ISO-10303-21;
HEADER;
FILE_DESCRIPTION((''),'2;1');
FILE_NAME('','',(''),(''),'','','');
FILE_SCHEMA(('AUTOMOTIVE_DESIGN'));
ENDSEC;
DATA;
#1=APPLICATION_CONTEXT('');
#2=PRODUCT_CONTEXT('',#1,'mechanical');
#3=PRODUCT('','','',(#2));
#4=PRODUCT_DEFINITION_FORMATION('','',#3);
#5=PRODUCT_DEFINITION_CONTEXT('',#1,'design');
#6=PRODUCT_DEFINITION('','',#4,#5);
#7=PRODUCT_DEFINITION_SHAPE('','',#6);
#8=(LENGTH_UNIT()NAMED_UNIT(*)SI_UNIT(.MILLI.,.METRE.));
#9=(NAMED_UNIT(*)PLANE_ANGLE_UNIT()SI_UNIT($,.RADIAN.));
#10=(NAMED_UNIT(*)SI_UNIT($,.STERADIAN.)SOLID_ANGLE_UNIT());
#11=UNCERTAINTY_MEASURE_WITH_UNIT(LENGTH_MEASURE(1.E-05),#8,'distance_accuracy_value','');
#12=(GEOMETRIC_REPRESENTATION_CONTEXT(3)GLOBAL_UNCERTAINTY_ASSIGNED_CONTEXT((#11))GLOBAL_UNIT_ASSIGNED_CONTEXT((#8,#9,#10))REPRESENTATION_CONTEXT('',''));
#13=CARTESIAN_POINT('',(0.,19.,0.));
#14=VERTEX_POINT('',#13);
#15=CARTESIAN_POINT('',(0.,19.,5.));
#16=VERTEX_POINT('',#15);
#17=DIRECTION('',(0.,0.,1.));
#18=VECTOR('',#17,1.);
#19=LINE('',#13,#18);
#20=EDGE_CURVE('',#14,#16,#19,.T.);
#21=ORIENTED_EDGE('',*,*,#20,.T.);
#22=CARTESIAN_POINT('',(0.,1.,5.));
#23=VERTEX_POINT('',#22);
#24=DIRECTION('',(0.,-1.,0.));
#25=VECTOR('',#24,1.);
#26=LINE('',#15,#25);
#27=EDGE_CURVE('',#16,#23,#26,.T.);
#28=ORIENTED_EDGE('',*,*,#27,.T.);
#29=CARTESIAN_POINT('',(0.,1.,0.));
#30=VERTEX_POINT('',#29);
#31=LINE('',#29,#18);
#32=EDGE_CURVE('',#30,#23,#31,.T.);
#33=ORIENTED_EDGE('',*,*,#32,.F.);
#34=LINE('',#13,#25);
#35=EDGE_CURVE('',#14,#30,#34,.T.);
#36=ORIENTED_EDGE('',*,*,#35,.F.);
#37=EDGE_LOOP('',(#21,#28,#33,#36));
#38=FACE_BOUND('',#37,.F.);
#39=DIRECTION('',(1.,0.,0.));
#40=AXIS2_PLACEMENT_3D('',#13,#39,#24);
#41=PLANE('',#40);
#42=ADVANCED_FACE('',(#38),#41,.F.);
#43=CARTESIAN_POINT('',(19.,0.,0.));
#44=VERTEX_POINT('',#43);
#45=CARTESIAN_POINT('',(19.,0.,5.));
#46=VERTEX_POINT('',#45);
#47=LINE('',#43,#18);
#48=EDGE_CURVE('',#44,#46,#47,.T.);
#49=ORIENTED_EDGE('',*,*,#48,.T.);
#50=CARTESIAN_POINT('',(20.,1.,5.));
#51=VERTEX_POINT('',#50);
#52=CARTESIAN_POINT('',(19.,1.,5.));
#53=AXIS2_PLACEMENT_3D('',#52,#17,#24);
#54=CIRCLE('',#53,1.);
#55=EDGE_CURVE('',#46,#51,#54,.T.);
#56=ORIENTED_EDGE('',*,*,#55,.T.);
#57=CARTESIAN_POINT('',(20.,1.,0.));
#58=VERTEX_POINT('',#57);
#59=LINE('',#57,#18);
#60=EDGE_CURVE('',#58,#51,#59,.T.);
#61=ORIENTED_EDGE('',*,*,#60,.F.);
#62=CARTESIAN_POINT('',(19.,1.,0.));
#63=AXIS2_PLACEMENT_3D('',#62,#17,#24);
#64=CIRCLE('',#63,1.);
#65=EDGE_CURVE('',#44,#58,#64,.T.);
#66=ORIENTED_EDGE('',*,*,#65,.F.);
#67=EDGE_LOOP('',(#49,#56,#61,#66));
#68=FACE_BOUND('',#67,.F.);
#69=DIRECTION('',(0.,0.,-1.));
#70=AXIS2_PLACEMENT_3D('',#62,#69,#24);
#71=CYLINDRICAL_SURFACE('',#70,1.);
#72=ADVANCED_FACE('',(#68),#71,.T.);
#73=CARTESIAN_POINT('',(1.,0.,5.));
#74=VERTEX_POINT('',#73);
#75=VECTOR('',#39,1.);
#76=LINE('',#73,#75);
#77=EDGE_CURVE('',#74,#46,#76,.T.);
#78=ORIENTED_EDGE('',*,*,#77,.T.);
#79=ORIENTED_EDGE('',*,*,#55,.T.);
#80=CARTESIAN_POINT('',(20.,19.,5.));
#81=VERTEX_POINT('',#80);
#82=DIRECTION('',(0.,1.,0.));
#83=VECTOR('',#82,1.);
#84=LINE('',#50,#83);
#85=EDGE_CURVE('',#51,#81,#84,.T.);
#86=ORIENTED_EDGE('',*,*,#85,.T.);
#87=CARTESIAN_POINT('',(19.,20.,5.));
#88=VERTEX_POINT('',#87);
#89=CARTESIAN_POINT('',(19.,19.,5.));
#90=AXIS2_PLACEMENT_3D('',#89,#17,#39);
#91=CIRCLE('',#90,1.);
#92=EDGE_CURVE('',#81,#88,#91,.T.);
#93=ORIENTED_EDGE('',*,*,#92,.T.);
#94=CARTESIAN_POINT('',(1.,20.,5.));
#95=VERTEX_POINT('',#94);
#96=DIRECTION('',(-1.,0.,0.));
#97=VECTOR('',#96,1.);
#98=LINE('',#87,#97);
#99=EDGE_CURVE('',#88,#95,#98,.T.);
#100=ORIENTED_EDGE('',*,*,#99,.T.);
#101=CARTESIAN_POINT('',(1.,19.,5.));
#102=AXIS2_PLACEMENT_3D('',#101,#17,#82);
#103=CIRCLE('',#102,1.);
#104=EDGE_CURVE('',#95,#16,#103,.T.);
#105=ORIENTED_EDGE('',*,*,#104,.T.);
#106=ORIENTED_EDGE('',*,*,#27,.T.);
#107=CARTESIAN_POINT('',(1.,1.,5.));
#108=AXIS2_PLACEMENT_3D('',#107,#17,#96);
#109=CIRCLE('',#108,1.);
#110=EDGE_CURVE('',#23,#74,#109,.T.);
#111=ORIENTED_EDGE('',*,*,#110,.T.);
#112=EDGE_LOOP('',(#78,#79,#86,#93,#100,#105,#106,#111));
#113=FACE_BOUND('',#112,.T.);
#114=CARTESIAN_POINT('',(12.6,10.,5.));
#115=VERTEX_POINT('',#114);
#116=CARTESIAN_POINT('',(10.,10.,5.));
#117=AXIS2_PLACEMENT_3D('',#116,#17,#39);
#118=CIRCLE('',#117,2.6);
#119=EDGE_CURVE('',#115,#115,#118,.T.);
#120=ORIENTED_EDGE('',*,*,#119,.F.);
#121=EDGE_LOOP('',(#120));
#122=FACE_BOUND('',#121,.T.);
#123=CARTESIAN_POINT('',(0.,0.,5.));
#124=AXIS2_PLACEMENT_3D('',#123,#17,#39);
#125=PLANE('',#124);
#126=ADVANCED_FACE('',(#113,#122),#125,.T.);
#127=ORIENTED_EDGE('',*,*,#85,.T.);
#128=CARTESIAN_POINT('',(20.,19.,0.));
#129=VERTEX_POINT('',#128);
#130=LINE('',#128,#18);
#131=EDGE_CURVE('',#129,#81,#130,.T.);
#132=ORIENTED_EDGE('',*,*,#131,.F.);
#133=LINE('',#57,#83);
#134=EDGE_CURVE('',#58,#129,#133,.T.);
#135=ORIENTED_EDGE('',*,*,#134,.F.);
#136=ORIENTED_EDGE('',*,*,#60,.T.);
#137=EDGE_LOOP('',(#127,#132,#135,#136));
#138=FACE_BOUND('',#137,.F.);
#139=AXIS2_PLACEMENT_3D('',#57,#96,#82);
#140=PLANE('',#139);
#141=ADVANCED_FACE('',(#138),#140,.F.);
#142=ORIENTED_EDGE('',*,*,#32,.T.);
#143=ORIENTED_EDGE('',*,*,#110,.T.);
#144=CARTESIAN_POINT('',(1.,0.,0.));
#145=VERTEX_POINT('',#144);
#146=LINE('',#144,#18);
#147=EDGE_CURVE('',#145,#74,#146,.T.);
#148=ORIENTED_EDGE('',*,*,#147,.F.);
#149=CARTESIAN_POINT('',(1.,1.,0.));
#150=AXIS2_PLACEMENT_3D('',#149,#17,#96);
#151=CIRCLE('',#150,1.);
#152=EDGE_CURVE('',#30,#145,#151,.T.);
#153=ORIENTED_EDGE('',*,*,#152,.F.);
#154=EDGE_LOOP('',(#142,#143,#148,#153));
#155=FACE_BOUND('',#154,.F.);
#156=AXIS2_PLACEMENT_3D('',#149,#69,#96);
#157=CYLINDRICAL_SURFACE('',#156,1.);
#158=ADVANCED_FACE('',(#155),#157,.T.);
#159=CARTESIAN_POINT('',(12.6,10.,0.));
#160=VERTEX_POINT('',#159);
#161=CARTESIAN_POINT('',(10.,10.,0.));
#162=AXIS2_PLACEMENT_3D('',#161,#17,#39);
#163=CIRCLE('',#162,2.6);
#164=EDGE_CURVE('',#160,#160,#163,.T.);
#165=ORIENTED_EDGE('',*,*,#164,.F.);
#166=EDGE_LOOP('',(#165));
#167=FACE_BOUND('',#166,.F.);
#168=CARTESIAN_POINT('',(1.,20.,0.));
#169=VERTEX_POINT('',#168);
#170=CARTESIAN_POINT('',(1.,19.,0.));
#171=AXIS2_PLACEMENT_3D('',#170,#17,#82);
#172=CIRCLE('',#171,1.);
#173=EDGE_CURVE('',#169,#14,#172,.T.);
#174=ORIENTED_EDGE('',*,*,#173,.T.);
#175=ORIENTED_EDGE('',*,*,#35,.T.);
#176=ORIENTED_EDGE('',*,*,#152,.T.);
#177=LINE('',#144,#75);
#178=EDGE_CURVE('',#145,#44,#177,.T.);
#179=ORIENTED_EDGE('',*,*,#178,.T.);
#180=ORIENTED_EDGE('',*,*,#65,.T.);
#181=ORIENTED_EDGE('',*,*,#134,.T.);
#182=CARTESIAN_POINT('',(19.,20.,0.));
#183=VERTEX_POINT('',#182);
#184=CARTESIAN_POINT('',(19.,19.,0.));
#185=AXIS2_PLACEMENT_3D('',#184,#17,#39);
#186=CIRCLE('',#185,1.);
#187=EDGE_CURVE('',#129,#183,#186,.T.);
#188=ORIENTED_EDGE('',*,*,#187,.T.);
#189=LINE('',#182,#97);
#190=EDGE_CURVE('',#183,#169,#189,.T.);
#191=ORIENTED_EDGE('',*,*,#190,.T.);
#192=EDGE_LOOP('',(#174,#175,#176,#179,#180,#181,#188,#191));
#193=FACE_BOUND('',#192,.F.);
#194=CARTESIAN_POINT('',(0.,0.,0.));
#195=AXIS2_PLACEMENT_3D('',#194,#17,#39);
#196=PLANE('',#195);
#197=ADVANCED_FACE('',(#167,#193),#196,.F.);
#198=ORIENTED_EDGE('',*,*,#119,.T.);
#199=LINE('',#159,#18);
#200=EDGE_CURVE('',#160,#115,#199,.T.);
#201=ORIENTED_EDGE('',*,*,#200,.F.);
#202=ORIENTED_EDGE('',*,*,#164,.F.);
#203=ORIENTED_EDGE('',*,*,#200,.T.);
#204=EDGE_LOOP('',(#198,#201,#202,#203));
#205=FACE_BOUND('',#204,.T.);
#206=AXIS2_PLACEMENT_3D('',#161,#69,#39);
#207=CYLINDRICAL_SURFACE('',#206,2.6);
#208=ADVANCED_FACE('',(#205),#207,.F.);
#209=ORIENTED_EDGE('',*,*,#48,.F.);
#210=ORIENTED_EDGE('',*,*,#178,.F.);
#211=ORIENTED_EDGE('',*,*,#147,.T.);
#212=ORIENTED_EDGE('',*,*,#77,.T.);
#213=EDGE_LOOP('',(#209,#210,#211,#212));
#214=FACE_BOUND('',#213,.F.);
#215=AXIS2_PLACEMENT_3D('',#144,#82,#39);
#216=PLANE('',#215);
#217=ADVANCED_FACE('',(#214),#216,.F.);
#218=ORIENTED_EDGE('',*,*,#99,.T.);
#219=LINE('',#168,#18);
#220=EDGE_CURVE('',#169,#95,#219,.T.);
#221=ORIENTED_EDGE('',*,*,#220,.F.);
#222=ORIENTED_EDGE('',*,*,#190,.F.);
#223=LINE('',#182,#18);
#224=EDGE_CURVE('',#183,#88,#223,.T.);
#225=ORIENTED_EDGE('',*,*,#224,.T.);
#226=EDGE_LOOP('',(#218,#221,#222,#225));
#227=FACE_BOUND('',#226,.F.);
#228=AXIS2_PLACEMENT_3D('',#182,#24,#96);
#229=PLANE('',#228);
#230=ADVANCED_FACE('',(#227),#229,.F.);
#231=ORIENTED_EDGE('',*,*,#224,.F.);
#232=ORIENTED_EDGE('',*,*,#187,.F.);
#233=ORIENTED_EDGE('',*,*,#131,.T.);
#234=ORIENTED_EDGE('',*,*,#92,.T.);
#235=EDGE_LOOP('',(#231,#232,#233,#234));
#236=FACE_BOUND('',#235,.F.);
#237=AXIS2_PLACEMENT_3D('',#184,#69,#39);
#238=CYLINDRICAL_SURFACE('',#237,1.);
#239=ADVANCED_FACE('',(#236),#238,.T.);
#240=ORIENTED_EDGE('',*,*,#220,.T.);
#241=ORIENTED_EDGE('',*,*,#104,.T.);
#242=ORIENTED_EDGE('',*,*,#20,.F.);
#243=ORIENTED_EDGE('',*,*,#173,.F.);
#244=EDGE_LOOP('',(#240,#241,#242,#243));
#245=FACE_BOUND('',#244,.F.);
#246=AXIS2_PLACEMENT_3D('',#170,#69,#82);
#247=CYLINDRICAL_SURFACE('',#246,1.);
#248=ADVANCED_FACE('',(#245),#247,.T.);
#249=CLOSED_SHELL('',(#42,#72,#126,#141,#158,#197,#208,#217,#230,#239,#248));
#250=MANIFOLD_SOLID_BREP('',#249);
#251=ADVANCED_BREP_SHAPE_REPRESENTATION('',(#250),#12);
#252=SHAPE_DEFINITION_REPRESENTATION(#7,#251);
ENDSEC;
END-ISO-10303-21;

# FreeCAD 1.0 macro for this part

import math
import FreeCAD as App
import Part
import Sketcher

doc = App.newDocument("Part")
params = doc.addObject("Spreadsheet::Sheet", "Params")
for row, (alias, value) in enumerate([
    ("sketch1_radius", "1 mm"),
    ("sketch1_diameter", "5.2 mm"),
    ("pad1_length", "5 mm"),
], start=1):
    params.set(f"A{row}", alias)
    params.set(f"B{row}", "=" + value)
    params.setAlias(f"B{row}", alias)

body = doc.addObject("PartDesign::Body", "Body")

# Sketch on XY plane
sketch1 = body.newObject("Sketcher::SketchObject", "Sketch")
sketch1.AttachmentSupport = (doc.getObject("XY_Plane"), [""])
sketch1.MapMode = "FlatFace"
sketch1.addGeometry([
    Part.ArcOfCircle(Part.Circle(App.Vector(1, 1, 0), App.Vector(0, 0, 1), 1), math.radians(180), math.radians(270)),  # 0
    Part.LineSegment(App.Vector(1, 0, 0), App.Vector(19, 0, 0)),  # 1
    Part.ArcOfCircle(Part.Circle(App.Vector(19, 1, 0), App.Vector(0, 0, 1), 1), math.radians(-90), math.radians(0)),  # 2
    Part.LineSegment(App.Vector(20, 1, 0), App.Vector(20, 19, 0)),  # 3
    Part.ArcOfCircle(Part.Circle(App.Vector(19, 19, 0), App.Vector(0, 0, 1), 1), math.radians(0), math.radians(90)),  # 4
    Part.LineSegment(App.Vector(19, 20, 0), App.Vector(1, 20, 0)),  # 5
    Part.ArcOfCircle(Part.Circle(App.Vector(1, 19, 0), App.Vector(0, 0, 1), 1), math.radians(90), math.radians(180)),  # 6
    Part.LineSegment(App.Vector(0, 19, 0), App.Vector(0, 1, 0)),  # 7
    Part.Circle(App.Vector(10, 10, 0), App.Vector(0, 0, 1), 2.6),  # 8
], False)
sketch1.addConstraint([
    Sketcher.Constraint("Tangent", 0, 2, 1, 1),
    Sketcher.Constraint("Tangent", 1, 2, 2, 1),
    Sketcher.Constraint("Tangent", 2, 2, 3, 1),
    Sketcher.Constraint("Tangent", 3, 2, 4, 1),
    Sketcher.Constraint("Tangent", 4, 2, 5, 1),
    Sketcher.Constraint("Tangent", 5, 2, 6, 1),
    Sketcher.Constraint("Tangent", 6, 2, 7, 1),
    Sketcher.Constraint("Tangent", 7, 2, 0, 1),
    Sketcher.Constraint("Horizontal", 1),
    Sketcher.Constraint("Vertical", 3),
    Sketcher.Constraint("Horizontal", 5),
    Sketcher.Constraint("Vertical", 7),
    Sketcher.Constraint("Equal", 0, 2),
    Sketcher.Constraint("Equal", 2, 4),
    Sketcher.Constraint("Equal", 4, 6),
    Sketcher.Constraint("PointOnObject", 0, 2, -1),
    Sketcher.Constraint("PointOnObject", 6, 2, -2),
    Sketcher.Constraint("Equal", 5, 3),
    Sketcher.Constraint("Radius", 0, 1.0),
    Sketcher.Constraint("Diameter", 8, 5.2),
    Sketcher.Constraint("DistanceX", -1, 1, 8, 3, 10.0),
    Sketcher.Constraint("DistanceY", -1, 1, 8, 3, 10.0),
    Sketcher.Constraint("DistanceX", -1, 1, 2, 2, 20.0),
])
sketch1.setExpression("Constraints[18]", "Params.sketch1_radius")
sketch1.setExpression("Constraints[19]", "Params.sketch1_diameter")
pad1 = body.newObject("PartDesign::Pad", "Pad")
pad1.Profile = sketch1
pad1.setExpression("Length", "Params.pad1_length")

doc.recompute()
